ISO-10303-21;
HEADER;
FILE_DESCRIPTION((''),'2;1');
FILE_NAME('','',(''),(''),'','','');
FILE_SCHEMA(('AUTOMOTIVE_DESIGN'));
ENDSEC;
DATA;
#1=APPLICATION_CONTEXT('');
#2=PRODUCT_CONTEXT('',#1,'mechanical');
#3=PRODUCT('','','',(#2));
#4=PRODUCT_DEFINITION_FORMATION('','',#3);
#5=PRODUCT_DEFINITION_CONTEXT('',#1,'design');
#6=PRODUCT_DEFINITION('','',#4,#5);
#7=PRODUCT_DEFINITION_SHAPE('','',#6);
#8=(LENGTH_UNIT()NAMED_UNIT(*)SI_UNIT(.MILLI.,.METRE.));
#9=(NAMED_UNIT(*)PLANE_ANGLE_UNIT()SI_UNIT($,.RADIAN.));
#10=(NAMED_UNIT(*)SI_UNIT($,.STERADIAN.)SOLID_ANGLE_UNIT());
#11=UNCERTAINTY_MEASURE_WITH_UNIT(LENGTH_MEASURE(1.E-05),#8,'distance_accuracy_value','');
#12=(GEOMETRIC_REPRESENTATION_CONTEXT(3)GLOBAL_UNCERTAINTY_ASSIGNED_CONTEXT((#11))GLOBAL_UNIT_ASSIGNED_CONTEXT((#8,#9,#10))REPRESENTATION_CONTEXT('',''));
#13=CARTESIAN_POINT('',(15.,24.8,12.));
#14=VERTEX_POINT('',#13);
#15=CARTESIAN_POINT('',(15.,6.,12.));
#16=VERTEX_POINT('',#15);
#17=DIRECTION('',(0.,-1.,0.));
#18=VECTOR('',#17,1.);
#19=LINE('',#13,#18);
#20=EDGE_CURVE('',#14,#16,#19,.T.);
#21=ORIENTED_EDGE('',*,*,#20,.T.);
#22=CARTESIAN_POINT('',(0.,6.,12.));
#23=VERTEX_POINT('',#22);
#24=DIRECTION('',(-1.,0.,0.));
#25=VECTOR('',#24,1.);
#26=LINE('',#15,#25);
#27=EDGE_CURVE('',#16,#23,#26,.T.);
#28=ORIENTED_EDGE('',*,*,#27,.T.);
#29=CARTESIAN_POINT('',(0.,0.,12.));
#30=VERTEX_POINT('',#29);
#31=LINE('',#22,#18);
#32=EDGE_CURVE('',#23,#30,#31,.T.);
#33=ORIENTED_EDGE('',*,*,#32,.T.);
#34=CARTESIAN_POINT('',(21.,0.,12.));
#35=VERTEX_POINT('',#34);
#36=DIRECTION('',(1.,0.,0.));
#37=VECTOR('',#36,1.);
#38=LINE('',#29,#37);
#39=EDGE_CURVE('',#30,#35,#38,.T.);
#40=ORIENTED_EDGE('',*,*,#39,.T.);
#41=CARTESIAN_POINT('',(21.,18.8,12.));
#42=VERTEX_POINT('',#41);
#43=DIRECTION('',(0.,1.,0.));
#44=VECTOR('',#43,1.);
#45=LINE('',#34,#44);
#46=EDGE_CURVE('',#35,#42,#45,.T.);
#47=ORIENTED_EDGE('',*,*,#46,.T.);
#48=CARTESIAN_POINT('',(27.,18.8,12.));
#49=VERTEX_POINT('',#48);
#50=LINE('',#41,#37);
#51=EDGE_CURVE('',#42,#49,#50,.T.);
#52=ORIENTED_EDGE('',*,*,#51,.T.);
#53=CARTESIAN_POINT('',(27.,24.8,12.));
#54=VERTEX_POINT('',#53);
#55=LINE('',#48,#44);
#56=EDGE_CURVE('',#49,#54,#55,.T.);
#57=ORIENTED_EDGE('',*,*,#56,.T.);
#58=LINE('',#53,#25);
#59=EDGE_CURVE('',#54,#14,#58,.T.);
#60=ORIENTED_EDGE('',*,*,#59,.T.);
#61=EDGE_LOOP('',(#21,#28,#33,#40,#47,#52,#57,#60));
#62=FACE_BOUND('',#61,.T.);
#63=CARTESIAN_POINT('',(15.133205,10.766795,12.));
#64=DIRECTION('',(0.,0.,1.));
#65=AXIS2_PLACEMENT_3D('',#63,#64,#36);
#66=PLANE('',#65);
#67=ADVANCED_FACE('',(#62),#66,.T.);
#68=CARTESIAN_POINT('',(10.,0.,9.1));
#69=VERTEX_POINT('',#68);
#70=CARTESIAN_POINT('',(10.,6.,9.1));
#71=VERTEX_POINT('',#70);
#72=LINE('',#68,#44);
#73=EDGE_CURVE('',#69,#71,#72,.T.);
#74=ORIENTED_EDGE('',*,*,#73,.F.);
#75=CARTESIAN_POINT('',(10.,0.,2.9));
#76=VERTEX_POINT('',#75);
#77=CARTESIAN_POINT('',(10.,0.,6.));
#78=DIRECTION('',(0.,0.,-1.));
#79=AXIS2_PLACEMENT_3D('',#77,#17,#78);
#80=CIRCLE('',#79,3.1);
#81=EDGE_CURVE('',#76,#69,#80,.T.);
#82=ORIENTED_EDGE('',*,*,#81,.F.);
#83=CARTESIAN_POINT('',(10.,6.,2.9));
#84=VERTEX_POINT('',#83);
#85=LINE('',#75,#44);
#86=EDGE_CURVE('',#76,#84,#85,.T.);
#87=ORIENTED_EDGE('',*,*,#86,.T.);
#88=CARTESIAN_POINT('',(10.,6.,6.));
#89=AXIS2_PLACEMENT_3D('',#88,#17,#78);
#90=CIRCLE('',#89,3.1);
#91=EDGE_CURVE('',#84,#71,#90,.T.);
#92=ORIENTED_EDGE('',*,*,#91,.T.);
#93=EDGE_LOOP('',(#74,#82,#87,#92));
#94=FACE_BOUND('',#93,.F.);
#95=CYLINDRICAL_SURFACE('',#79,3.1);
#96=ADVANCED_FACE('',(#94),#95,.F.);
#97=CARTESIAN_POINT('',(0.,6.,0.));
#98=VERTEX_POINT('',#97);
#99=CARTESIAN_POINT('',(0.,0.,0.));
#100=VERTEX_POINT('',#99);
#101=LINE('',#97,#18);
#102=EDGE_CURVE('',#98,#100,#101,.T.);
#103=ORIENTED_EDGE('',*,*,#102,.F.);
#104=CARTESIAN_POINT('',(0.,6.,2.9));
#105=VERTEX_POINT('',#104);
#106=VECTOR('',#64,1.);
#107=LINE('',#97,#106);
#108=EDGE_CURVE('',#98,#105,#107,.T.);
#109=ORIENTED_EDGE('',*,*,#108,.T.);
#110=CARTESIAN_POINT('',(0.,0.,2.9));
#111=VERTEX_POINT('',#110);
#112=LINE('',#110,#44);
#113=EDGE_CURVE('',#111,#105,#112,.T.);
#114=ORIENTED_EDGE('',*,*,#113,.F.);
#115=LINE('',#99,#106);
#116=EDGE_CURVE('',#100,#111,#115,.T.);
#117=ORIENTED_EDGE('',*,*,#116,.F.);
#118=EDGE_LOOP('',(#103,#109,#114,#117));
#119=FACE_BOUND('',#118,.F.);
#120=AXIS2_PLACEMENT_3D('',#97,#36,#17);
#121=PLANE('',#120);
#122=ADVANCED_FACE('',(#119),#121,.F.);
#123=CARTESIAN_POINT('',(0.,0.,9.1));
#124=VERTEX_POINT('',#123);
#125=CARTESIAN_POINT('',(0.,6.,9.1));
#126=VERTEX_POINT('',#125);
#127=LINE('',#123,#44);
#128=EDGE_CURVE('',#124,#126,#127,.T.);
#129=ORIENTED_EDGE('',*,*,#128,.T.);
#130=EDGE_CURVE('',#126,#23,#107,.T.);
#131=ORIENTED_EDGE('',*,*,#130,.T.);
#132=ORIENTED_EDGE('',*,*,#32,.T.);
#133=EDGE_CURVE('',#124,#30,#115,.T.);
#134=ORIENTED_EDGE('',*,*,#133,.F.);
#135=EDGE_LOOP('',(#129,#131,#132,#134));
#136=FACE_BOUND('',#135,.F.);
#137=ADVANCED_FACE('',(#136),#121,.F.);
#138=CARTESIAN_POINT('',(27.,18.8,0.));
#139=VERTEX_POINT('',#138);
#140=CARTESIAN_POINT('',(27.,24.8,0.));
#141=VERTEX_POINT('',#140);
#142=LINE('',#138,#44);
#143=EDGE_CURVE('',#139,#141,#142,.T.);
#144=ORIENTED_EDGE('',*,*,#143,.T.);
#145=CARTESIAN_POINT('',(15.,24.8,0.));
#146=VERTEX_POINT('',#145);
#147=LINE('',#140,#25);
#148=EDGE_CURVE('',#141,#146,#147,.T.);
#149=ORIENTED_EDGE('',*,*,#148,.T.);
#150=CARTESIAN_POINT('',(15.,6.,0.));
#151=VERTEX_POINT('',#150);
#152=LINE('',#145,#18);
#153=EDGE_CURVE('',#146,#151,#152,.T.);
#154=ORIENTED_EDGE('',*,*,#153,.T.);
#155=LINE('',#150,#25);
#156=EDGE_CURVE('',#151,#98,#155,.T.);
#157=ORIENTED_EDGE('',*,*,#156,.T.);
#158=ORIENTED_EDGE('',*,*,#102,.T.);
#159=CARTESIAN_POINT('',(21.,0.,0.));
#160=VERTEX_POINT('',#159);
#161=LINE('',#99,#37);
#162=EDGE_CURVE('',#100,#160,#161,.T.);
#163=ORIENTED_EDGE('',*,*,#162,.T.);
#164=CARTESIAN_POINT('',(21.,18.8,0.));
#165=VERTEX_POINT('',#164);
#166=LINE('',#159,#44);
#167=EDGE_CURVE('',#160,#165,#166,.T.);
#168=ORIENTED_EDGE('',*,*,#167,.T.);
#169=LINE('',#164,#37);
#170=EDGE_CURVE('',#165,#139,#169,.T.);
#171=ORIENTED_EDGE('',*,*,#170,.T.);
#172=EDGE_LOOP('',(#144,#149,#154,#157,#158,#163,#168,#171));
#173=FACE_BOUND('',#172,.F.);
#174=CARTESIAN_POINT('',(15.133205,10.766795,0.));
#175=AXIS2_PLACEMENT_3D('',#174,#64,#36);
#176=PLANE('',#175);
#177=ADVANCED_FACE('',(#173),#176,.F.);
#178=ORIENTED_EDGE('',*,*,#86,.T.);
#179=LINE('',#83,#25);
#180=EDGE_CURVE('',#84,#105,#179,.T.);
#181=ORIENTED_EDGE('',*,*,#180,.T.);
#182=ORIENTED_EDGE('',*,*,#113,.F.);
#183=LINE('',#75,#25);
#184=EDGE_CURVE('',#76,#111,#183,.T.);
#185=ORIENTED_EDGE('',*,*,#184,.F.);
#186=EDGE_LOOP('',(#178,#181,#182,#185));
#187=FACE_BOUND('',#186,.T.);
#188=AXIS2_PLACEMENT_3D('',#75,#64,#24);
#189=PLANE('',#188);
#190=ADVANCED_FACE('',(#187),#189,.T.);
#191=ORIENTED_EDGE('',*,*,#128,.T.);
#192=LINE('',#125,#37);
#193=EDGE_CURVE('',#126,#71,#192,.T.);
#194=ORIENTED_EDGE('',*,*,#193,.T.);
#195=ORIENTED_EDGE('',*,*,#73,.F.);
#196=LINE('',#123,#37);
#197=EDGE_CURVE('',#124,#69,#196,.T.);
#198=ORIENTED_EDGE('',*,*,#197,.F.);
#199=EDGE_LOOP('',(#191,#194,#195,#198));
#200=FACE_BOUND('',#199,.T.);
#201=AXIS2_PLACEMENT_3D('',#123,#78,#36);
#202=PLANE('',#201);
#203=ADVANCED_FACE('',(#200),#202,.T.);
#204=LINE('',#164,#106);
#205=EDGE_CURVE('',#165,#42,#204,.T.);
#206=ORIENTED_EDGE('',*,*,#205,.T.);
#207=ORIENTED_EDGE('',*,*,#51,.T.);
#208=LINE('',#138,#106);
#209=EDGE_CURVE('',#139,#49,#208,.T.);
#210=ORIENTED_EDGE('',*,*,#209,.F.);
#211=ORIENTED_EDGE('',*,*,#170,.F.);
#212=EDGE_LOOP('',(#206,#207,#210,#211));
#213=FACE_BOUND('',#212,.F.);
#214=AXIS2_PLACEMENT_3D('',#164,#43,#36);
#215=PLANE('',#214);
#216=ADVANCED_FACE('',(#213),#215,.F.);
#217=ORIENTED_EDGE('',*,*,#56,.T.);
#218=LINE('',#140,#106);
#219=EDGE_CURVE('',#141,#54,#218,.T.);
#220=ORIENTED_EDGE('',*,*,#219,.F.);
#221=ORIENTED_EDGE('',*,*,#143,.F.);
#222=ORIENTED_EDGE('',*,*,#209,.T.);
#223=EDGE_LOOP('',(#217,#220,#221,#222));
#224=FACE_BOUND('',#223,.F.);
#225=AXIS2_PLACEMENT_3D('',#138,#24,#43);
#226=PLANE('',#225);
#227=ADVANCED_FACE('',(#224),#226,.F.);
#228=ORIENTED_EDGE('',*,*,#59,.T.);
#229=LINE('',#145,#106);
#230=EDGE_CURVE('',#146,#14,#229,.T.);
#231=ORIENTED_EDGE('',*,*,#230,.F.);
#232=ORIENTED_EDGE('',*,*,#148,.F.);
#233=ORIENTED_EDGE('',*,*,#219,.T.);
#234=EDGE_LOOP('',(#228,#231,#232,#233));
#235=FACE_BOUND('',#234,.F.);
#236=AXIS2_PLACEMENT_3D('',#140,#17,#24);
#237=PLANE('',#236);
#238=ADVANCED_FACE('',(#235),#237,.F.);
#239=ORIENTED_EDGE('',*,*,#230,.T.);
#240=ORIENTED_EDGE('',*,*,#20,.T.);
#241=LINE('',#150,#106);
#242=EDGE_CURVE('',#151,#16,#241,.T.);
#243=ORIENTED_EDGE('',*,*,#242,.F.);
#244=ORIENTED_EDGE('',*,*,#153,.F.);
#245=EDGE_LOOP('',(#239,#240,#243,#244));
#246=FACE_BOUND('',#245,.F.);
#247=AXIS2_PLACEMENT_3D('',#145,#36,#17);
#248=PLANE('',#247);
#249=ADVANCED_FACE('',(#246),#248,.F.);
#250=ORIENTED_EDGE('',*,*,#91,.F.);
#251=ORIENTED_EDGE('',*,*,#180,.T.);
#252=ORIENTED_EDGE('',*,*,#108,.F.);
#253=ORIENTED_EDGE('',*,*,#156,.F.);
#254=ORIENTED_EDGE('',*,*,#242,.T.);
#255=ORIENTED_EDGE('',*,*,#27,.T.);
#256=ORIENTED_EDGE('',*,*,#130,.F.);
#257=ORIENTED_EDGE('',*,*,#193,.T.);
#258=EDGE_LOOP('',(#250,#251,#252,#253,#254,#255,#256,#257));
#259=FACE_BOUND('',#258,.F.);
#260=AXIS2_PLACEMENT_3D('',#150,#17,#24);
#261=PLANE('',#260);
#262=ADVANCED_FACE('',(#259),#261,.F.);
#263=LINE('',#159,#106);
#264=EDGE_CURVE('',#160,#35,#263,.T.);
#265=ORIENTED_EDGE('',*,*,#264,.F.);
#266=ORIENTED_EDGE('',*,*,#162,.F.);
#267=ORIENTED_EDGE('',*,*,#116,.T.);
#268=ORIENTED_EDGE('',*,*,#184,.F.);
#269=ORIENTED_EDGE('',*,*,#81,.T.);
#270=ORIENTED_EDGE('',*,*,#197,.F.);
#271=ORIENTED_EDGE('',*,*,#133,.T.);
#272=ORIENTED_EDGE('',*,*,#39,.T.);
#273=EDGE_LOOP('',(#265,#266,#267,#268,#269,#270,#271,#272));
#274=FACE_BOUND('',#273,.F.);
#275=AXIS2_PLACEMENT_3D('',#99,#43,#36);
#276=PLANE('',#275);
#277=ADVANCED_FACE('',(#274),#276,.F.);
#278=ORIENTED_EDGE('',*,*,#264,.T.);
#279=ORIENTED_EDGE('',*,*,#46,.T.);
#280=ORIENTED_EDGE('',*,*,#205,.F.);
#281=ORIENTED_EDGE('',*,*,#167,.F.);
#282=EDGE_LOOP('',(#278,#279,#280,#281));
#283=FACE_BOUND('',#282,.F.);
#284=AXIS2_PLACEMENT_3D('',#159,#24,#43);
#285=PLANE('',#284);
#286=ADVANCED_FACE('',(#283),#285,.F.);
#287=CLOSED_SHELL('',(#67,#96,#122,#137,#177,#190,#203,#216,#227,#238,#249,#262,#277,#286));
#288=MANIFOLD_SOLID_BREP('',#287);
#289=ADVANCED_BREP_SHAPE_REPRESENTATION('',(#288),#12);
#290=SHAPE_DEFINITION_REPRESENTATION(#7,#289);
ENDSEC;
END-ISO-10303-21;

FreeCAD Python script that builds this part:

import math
import FreeCAD as App
import Part
import Sketcher


def add_polygon(sketch, points):
    """Adds a closed chain of lines whose ends are joined by coincident constraints."""
    first, n = sketch.GeometryCount, len(points)
    for a, b in zip(points, points[1:] + points[:1]):
        sketch.addGeometry(Part.LineSegment(App.Vector(*a, 0), App.Vector(*b, 0)), False)
    for i in range(n):
        sketch.addConstraint(Sketcher.Constraint("Coincident", first + i, 2, first + (i + 1) % n, 1))

doc = App.newDocument("Part")
body = doc.addObject("PartDesign::Body", "Body")

# Sketch on XY plane
sketch1 = body.newObject("Sketcher::SketchObject", "Sketch")
sketch1.AttachmentSupport = (doc.getObject("XY_Plane"), [""])
sketch1.MapMode = "FlatFace"
add_polygon(sketch1, [(0, 0), (21, 0), (21, 19), (27, 19), (27, 25), (15, 25), (15, 6), (0, 6)])  # lines 0-7
sketch1.addConstraint([
    Sketcher.Constraint("Horizontal", 0),
    Sketcher.Constraint("Vertical", 1),
    Sketcher.Constraint("Horizontal", 2),
    Sketcher.Constraint("Vertical", 3),
    Sketcher.Constraint("Horizontal", 4),
    Sketcher.Constraint("Vertical", 5),
    Sketcher.Constraint("Horizontal", 6),
    Sketcher.Constraint("Vertical", 7),
    Sketcher.Constraint("Coincident", 7, 2, -1, 1),
    Sketcher.Constraint("Equal", 2, 3),
    Sketcher.Constraint("Equal", 1, 5),
    Sketcher.Constraint("DistanceX", 0, 1, 0, 2, 21.0),
    Sketcher.Constraint("DistanceX", 2, 1, 2, 2, 6.0),
    Sketcher.Constraint("DistanceX", 4, 2, 4, 1, 12.0),
    Sketcher.Constraint("DistanceY", 1, 1, 1, 2, 18.8),
])
pad1 = body.newObject("PartDesign::Pad", "Pad")
pad1.Profile = sketch1
pad1.Length = 12

# Sketch on XZ plane
sketch2 = body.newObject("Sketcher::SketchObject", "Sketch001")
sketch2.AttachmentSupport = (doc.getObject("XZ_Plane"), [""])
sketch2.MapMode = "FlatFace"
sketch2.addGeometry([
    Part.LineSegment(App.Vector(10, 9.1, 0), App.Vector(0, 9.1, 0)),
    Part.ArcOfCircle(Part.Circle(App.Vector(0, 6, 0), App.Vector(0, 0, 1), 3.1), math.radians(90), math.radians(270)),
    Part.LineSegment(App.Vector(0, 2.9, 0), App.Vector(10, 2.9, 0)),
    Part.ArcOfCircle(Part.Circle(App.Vector(10, 6, 0), App.Vector(0, 0, 1), 3.1), math.radians(-90), math.radians(90)),
], False)
sketch2.addConstraint([
    Sketcher.Constraint("Tangent", 0, 2, 1, 1),
    Sketcher.Constraint("Tangent", 1, 2, 2, 1),
    Sketcher.Constraint("Tangent", 2, 2, 3, 1),
    Sketcher.Constraint("Tangent", 3, 2, 0, 1),
    Sketcher.Constraint("Horizontal", 0),
    Sketcher.Constraint("Horizontal", 2),
    Sketcher.Constraint("PointOnObject", 1, 3, -2),
    Sketcher.Constraint("Radius", 1, 3.1),
    Sketcher.Constraint("DistanceX", 0, 2, 0, 1, 10.0),
    Sketcher.Constraint("DistanceY", -1, 1, 1, 3, 6.0),
])
pocket1 = body.newObject("PartDesign::Pocket", "Pocket")
pocket1.Profile = sketch2
pocket1.Length = 6

doc.recompute()
